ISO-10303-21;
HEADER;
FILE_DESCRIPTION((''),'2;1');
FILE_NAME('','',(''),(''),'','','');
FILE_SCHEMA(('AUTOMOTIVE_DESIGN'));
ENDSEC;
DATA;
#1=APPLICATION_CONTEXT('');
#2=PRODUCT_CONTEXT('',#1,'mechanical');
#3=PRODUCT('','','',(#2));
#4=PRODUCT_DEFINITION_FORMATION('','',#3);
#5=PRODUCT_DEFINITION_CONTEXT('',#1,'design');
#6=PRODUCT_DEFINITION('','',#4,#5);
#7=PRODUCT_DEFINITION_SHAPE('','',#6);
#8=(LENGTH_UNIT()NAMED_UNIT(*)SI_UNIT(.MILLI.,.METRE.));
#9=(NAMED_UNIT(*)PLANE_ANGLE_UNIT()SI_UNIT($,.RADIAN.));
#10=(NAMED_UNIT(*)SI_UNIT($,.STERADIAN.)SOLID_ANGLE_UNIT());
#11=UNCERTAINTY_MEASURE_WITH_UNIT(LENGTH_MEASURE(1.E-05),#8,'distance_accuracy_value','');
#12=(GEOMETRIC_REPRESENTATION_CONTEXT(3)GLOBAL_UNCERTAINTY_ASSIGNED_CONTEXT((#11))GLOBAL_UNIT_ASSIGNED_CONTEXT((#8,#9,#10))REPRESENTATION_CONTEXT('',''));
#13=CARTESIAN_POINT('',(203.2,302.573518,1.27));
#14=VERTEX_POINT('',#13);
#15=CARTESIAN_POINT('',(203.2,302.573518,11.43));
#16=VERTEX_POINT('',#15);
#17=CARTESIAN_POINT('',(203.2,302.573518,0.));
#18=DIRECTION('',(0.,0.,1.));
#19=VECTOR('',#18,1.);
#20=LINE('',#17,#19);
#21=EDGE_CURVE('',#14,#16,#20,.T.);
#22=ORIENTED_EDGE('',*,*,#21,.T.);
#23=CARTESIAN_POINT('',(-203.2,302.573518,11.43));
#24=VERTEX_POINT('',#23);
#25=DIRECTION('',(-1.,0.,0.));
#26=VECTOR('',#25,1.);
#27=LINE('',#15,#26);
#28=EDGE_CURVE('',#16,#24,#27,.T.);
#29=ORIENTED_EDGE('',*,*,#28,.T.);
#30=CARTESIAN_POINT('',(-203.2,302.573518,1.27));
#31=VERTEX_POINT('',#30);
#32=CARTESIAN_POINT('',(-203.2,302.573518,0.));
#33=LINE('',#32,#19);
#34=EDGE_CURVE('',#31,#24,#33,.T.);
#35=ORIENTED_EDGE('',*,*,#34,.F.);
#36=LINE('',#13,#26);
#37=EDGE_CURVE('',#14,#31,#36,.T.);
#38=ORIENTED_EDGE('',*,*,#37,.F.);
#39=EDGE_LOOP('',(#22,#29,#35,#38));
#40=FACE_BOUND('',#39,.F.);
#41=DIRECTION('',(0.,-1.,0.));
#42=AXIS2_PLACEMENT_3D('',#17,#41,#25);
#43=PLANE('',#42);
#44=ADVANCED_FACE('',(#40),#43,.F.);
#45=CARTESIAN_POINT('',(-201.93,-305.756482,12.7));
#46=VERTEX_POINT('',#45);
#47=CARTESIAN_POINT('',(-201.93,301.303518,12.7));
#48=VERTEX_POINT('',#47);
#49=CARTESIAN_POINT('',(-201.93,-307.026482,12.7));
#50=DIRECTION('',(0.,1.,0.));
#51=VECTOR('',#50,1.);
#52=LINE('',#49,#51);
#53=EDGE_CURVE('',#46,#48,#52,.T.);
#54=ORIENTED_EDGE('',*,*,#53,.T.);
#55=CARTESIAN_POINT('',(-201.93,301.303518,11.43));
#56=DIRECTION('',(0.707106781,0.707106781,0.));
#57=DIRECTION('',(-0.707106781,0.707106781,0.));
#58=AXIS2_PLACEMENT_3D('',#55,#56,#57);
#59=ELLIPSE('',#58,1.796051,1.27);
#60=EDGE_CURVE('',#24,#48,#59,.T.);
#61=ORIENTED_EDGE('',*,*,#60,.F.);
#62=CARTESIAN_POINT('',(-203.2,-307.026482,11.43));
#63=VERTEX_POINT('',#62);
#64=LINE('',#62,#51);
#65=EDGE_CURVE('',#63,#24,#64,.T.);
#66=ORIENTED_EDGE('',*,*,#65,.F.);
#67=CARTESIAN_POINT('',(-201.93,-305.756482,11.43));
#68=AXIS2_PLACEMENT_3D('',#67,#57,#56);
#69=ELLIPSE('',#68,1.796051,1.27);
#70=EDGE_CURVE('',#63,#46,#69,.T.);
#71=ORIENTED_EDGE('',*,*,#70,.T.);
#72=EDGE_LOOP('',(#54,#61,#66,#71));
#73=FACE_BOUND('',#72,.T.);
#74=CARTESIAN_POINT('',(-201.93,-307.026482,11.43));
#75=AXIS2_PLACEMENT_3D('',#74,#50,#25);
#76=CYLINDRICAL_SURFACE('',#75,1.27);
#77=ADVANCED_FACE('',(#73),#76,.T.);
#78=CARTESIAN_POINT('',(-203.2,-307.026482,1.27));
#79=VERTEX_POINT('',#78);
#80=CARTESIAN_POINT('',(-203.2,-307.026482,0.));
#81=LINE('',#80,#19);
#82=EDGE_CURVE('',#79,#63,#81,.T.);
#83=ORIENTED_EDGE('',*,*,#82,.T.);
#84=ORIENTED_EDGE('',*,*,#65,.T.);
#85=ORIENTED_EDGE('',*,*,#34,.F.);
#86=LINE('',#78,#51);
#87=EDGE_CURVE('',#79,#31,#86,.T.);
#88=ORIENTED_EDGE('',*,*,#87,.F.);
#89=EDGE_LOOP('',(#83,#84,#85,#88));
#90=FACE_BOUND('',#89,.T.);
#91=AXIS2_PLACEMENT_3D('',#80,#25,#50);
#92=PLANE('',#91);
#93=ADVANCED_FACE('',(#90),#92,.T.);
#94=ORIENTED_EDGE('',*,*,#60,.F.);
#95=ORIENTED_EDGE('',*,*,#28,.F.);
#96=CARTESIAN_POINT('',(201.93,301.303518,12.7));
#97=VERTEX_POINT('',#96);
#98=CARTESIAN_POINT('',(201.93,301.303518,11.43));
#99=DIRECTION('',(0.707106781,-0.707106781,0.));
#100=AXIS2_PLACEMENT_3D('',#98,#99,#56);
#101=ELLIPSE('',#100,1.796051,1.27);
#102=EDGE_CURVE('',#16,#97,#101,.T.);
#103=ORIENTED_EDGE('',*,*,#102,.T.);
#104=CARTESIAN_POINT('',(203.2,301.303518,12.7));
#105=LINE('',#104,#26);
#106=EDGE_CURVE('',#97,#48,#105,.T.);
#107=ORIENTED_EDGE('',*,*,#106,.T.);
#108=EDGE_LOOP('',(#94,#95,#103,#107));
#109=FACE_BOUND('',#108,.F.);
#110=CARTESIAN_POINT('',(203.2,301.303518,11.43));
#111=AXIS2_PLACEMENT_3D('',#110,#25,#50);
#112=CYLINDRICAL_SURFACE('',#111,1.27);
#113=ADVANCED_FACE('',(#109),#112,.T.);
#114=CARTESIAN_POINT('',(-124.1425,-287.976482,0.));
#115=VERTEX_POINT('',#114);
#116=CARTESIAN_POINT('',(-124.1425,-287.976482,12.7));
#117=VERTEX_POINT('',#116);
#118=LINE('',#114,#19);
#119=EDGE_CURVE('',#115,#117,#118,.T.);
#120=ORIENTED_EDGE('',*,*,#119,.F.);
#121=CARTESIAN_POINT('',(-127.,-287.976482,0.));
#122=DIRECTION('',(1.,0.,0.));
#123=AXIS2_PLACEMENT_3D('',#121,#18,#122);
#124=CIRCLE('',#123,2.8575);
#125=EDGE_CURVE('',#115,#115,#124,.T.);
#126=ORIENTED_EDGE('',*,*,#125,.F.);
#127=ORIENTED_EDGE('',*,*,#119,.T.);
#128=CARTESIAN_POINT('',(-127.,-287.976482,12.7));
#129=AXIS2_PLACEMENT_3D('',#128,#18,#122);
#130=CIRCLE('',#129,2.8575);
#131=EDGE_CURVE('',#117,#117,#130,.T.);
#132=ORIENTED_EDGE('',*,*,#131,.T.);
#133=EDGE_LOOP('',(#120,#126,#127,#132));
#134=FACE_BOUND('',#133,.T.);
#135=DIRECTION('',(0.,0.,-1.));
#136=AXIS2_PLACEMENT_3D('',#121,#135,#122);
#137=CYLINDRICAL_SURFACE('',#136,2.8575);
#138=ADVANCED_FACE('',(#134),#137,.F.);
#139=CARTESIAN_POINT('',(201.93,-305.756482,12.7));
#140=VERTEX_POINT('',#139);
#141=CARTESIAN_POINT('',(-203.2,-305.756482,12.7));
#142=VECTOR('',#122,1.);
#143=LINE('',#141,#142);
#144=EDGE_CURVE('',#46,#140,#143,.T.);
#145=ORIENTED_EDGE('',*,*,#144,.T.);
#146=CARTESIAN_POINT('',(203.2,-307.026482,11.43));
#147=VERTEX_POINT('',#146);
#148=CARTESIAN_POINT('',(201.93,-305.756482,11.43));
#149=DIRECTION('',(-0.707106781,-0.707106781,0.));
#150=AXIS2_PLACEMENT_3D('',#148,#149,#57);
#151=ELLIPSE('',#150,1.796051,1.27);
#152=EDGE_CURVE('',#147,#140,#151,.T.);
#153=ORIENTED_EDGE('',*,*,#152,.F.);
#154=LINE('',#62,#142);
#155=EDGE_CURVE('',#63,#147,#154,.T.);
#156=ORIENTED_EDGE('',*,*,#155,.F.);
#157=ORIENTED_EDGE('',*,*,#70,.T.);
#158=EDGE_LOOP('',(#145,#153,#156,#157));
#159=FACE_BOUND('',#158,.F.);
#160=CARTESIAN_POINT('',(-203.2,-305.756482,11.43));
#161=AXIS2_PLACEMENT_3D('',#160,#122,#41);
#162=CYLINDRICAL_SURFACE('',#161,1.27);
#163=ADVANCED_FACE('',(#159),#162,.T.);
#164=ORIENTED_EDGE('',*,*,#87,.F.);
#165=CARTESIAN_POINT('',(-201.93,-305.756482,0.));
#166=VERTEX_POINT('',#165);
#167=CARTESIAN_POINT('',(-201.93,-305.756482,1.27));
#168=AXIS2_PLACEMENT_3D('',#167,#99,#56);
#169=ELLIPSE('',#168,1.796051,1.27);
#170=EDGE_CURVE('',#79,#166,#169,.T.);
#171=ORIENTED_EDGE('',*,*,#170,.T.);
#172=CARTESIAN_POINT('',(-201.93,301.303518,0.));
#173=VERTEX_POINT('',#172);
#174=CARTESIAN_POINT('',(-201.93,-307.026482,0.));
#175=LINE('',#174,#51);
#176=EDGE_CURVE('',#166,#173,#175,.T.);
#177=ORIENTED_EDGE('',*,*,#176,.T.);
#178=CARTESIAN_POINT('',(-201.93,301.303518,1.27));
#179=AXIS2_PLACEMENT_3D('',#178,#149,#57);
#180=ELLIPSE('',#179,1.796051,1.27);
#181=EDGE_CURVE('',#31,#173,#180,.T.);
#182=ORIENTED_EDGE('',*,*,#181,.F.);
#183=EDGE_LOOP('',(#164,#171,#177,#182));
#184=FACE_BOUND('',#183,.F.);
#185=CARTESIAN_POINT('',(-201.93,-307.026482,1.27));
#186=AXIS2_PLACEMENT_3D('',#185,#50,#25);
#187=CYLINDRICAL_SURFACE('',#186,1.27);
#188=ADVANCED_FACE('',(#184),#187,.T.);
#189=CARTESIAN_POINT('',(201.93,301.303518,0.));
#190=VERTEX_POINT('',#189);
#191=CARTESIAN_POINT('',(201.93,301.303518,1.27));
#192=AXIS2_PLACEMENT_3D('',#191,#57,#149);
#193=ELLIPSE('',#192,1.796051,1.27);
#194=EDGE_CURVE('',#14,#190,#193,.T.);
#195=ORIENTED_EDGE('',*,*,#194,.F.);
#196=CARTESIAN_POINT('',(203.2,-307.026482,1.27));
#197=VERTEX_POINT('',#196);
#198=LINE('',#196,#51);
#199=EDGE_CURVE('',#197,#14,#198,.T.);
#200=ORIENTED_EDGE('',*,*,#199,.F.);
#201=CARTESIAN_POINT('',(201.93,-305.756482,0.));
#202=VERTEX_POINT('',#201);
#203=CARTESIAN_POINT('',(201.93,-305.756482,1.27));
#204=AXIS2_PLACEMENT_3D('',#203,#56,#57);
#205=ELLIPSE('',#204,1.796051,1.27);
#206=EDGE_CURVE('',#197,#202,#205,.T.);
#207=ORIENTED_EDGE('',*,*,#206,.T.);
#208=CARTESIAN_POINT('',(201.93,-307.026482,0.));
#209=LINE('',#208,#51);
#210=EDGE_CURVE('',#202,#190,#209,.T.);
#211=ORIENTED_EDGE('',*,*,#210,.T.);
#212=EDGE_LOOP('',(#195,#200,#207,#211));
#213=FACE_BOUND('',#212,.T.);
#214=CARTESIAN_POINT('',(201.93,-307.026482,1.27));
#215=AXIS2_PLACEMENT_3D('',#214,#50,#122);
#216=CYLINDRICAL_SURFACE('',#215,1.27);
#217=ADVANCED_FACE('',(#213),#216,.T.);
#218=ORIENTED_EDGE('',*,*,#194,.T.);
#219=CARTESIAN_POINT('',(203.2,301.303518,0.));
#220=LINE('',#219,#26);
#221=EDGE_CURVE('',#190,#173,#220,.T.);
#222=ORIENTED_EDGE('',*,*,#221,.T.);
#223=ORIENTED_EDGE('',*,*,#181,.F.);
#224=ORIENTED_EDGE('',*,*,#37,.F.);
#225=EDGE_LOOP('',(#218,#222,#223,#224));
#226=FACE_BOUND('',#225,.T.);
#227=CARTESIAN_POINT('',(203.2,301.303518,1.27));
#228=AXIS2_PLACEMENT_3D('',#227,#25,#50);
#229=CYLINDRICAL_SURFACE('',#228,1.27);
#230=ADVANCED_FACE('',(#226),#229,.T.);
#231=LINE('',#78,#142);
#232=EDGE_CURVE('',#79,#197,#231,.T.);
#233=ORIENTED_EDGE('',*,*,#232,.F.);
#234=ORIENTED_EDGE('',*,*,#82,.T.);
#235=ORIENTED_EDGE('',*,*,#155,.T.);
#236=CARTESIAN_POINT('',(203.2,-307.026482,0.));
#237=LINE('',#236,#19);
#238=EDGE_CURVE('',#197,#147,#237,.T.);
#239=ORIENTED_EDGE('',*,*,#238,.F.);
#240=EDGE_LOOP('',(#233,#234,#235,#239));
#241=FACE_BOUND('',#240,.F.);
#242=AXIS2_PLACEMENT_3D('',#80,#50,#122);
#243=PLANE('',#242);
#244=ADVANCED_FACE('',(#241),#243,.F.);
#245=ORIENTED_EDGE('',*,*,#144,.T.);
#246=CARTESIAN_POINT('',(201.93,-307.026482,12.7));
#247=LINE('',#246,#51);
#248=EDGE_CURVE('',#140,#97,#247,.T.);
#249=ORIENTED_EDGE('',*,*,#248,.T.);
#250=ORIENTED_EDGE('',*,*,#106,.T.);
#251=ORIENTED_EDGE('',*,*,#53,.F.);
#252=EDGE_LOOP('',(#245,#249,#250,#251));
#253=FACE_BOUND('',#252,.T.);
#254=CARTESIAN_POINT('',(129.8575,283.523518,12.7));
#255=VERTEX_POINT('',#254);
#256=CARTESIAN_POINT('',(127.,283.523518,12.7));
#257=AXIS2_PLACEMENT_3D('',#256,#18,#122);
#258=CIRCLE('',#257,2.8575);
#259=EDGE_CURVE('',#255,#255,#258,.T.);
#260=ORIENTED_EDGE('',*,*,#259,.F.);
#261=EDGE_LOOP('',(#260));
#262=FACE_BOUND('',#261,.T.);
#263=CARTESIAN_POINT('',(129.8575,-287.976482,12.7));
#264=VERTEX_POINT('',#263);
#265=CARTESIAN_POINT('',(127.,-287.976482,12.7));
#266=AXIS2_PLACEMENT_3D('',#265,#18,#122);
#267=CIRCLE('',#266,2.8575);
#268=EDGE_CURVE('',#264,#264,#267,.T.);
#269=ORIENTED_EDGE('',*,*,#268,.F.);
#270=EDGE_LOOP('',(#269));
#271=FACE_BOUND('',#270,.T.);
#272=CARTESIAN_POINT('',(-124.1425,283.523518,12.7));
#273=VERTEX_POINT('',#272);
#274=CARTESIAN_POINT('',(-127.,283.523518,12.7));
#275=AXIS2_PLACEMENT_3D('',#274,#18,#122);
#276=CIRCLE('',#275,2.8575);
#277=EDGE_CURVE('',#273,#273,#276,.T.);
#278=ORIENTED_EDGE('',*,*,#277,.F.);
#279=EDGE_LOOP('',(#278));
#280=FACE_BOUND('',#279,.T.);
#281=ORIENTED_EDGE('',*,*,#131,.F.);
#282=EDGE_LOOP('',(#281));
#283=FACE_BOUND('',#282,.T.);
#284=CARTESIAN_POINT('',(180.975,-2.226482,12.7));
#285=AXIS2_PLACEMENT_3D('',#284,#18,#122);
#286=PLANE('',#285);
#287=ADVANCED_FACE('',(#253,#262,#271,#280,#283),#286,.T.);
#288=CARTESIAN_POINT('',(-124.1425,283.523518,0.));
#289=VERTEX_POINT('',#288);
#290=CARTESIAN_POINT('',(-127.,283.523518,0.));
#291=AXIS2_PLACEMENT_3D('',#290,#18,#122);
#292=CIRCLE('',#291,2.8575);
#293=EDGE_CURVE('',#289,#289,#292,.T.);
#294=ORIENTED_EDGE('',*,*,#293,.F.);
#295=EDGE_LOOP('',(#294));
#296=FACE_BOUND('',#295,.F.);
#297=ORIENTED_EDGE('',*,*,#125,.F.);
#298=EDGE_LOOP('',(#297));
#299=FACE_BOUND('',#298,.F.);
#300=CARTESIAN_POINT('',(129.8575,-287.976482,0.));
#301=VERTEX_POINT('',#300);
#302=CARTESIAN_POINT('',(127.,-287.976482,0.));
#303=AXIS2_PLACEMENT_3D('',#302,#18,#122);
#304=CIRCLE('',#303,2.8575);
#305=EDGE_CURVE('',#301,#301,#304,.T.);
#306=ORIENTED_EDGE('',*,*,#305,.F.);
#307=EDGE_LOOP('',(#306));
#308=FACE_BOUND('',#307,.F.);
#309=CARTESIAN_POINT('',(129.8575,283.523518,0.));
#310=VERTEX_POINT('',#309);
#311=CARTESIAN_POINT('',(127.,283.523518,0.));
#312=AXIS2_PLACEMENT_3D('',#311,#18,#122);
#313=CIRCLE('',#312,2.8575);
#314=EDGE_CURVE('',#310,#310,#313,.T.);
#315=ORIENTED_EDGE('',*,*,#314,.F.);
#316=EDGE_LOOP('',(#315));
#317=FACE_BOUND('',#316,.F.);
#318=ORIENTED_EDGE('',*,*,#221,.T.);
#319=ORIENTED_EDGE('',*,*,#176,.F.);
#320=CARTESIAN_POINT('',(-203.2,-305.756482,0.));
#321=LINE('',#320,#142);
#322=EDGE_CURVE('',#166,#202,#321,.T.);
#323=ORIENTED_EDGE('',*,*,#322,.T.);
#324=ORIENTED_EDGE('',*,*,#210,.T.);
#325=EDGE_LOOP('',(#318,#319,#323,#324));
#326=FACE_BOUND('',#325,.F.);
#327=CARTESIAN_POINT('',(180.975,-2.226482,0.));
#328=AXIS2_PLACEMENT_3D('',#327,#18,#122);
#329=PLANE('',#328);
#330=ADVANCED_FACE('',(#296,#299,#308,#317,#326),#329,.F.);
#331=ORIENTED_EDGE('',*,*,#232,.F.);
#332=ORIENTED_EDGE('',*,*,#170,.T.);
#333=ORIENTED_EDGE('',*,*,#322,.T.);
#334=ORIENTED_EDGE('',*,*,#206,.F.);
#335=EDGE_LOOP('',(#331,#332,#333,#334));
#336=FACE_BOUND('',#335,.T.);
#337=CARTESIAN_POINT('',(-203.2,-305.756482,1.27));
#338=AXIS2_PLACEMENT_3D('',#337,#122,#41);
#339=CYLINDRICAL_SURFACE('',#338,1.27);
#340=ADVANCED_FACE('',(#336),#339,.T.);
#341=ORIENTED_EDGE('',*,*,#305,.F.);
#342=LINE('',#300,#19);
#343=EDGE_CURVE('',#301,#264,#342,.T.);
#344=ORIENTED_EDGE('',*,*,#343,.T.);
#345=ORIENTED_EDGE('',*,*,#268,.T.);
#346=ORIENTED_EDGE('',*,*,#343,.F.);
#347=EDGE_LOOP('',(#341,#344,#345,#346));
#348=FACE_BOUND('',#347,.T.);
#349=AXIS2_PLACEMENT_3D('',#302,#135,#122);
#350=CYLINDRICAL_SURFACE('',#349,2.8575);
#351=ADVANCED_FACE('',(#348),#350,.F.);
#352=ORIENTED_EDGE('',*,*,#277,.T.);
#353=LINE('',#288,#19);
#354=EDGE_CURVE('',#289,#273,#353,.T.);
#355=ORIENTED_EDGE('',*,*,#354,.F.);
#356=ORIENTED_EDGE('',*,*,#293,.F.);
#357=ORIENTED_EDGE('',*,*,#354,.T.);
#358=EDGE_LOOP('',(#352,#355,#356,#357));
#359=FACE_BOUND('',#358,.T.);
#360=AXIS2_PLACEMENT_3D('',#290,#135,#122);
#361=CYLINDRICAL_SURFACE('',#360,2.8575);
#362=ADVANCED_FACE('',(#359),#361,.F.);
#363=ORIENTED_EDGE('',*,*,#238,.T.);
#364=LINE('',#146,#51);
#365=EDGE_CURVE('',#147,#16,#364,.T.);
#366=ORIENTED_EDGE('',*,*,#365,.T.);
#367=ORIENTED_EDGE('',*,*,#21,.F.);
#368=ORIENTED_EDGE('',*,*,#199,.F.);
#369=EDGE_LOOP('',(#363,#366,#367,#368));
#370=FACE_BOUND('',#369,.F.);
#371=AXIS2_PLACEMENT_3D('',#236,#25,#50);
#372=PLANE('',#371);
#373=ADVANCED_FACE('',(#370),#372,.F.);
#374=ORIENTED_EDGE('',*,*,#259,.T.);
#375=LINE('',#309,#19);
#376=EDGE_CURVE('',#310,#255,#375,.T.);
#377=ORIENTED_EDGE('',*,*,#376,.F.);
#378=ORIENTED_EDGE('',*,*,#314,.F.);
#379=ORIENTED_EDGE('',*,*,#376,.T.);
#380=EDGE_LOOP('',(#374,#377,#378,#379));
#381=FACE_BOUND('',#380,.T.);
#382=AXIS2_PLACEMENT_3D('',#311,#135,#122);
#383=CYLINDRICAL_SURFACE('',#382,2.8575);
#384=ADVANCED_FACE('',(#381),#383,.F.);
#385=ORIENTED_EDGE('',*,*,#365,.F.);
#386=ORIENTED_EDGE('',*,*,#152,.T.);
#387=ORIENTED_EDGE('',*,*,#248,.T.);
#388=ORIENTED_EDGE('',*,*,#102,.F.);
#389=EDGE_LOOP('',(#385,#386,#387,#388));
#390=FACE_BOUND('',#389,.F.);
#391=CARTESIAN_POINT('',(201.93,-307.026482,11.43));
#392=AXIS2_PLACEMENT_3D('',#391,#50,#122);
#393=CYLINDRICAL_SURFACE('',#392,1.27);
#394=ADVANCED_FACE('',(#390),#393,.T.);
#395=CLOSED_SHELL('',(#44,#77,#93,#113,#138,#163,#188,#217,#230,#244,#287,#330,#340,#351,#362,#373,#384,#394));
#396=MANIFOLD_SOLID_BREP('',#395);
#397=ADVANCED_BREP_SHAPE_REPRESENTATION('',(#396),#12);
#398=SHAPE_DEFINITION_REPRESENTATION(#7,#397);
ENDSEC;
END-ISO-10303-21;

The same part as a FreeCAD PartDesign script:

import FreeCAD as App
import Part
import Sketcher
Q = App.Units.Quantity


def edges_at(feature, points):
    """Names of the edges that pass closest to the given points."""
    edges = feature.Shape.Edges
    near = lambda p: min(range(len(edges)), key=lambda i: edges[i].distToShape(Part.Vertex(*p))[0])
    return sorted({f"Edge{near(p) + 1}" for p in points})

doc = App.newDocument("Part")
body = doc.addObject("PartDesign::Body", "Body")

# Sketch on XY plane
sketch1 = body.newObject("Sketcher::SketchObject", "Sketch")
sketch1.AttachmentSupport = (doc.getObject("XY_Plane"), [""])
sketch1.MapMode = "FlatFace"
sketch1.addGeometry(Part.LineSegment(App.Vector(203.2, -307, 0), App.Vector(203.2, 302.6, 0)), False)
sketch1.addGeometry(Part.LineSegment(App.Vector(203.2, 302.6, 0), App.Vector(-203.2, 302.6, 0)), False)
sketch1.addGeometry(Part.LineSegment(App.Vector(-203.2, 302.6, 0), App.Vector(-203.2, -307, 0)), False)
sketch1.addGeometry(Part.LineSegment(App.Vector(-203.2, -307, 0), App.Vector(203.2, -307, 0)), False)
sketch1.addGeometry(Part.Circle(App.Vector(-127, -288, 0), App.Vector(0, 0, 1), 2.9), False)
sketch1.addGeometry(Part.Circle(App.Vector(127, -288, 0), App.Vector(0, 0, 1), 2.9), False)
sketch1.addGeometry(Part.Circle(App.Vector(-127, 283.5, 0), App.Vector(0, 0, 1), 2.9), False)
sketch1.addGeometry(Part.Circle(App.Vector(127, 283.5, 0), App.Vector(0, 0, 1), 2.9), False)
sketch1.addConstraint(Sketcher.Constraint("Coincident", 0, 2, 1, 1))
sketch1.addConstraint(Sketcher.Constraint("Coincident", 1, 2, 2, 1))
sketch1.addConstraint(Sketcher.Constraint("Coincident", 2, 2, 3, 1))
sketch1.addConstraint(Sketcher.Constraint("Coincident", 3, 2, 0, 1))
sketch1.addConstraint(Sketcher.Constraint("Vertical", 0))
sketch1.addConstraint(Sketcher.Constraint("Horizontal", 1))
sketch1.addConstraint(Sketcher.Constraint("Vertical", 2))
sketch1.addConstraint(Sketcher.Constraint("Horizontal", 3))
sketch1.addConstraint(Sketcher.Constraint("Equal", 4, 5))
sketch1.addConstraint(Sketcher.Constraint("Equal", 5, 6))
sketch1.addConstraint(Sketcher.Constraint("Equal", 6, 7))
sketch1.addConstraint(Sketcher.Constraint("Symmetric", 4, 3, 5, 3, -2))
sketch1.addConstraint(Sketcher.Constraint("Symmetric", 6, 3, 7, 3, -2))
sketch1.addConstraint(Sketcher.Constraint("Vertical", 4, 3, 6, 3))
sketch1.addConstraint(Sketcher.Constraint("DistanceX", 1, 2, 1, 1, Q("16 in")))
sketch1.addConstraint(Sketcher.Constraint("DistanceY", 0, 1, 0, 2, Q("24 in")))
sketch1.addConstraint(Sketcher.Constraint("Diameter", 4, Q("0.225 in")))
sketch1.addConstraint(Sketcher.Constraint("DistanceX", 4, 3, -1, 1, Q("5 in")))
sketch1.addConstraint(Sketcher.Constraint("DistanceX", -1, 1, 0, 2, Q("8 in")))
sketch1.addConstraint(Sketcher.Constraint("DistanceY", 4, 3, 6, 3, Q("22.5 in")))
sketch1.addConstraint(Sketcher.Constraint("DistanceY", 7, 3, 0, 2, Q("0.75 in")))
sketch1.addConstraint(Sketcher.Constraint("DistanceY", 4, 3, -1, 1, 287.976482))
pad1 = body.newObject("PartDesign::Pad", "Pad")
pad1.Profile = sketch1
pad1.Length = Q("0.5 in")
doc.recompute()

fillet = body.newObject("PartDesign::Fillet", "Fillet")
fillet.Base = (pad1, edges_at(pad1, [
    (0, 302.574, 0),
    (-203.2, -2.226, 0),
    (203.2, -2.226, 0),
    (0, -307.026, 0),
    (203.2, -2.226, 12.7),
    (0, -307.026, 12.7),
    (-203.2, -2.226, 12.7),
    (0, 302.574, 12.7),
]))
fillet.Radius = Q("0.05 in")

doc.recompute()
